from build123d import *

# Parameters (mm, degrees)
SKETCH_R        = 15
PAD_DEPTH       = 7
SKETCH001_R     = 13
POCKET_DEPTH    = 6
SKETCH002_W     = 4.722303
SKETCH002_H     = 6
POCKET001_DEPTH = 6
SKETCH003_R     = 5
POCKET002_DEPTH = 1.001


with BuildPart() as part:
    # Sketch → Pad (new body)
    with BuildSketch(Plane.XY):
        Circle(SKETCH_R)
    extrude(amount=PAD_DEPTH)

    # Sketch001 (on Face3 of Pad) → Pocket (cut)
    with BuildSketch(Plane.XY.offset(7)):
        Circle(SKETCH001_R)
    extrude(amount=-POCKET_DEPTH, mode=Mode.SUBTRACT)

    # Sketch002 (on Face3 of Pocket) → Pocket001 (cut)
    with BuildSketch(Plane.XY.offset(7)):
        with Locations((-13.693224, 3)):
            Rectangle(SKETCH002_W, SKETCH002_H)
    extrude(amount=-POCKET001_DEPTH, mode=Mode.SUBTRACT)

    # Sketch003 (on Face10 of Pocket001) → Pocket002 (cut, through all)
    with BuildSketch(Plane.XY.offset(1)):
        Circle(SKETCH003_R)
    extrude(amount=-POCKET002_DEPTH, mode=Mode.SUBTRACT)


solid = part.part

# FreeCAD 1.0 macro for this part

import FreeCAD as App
import Part
import Sketcher

V = App.Vector
Q = App.Units.Quantity


def add_polygon(sketch, points):
    """Adds a closed chain of lines whose ends are joined by coincident constraints."""
    first, n = sketch.GeometryCount, len(points)
    for a, b in zip(points, points[1:] + points[:1]):
        sketch.addGeometry(Part.LineSegment(App.Vector(*a, 0), App.Vector(*b, 0)), False)
    for i in range(n):
        sketch.addConstraint(Sketcher.Constraint("Coincident", first + i, 2, first + (i + 1) % n, 1))

doc = App.newDocument("Part")
body = doc.addObject("PartDesign::Body", "Body")

# Sketch on XY plane
sketch1 = body.newObject("Sketcher::SketchObject", "Sketch")
sketch1.AttachmentSupport = (doc.getObject("XY_Plane"), [""])
sketch1.MapMode = "FlatFace"
sketch1.addGeometry(Part.Circle(V(0, 0, 0), V(0, 0, 1), 15), False)
sketch1.addConstraint([
    Sketcher.Constraint("Coincident", 0, 3, -1, 1),
    Sketcher.Constraint("Diameter", 0, Q("30 mm")),
])
pad1 = body.newObject("PartDesign::Pad", "Pad")
pad1.Profile = sketch1
pad1.Length = 7

# Sketch on XY plane
sketch2 = body.newObject("Sketcher::SketchObject", "Sketch001")
sketch2.AttachmentSupport = (doc.getObject("XY_Plane"), [""])
sketch2.MapMode = "FlatFace"
sketch2.AttachmentOffset = App.Placement(V(0, 0, 7), App.Rotation())
sketch2.addGeometry(Part.Circle(V(0, 0, 0), V(0, 0, 1), 13), False)
sketch2.addConstraint([
    Sketcher.Constraint("Coincident", 0, 3, -1, 1),
    Sketcher.Constraint("Diameter", 0, Q("26 mm")),
])
pocket1 = body.newObject("PartDesign::Pocket", "Pocket")
pocket1.Profile = sketch2
pocket1.Length = 6

# Sketch on XY plane
sketch3 = body.newObject("Sketcher::SketchObject", "Sketch002")
sketch3.AttachmentSupport = (doc.getObject("XY_Plane"), [""])
sketch3.MapMode = "FlatFace"
sketch3.AttachmentOffset = App.Placement(V(0, 0, 7), App.Rotation())
add_polygon(sketch3, [(-16.054375, 6), (-16.054375, 0), (-11.332073, 0), (-11.332073, 6)])  # lines 0-3
sketch3.addConstraint([
    Sketcher.Constraint("Vertical", 0),
    Sketcher.Constraint("Horizontal", 1),
    Sketcher.Constraint("Vertical", 2),
    Sketcher.Constraint("Horizontal", 3),
    Sketcher.Constraint("PointOnObject", 0, 2, -1),
    Sketcher.Constraint("DistanceY", 0, 2, 0, 1, Q("6 mm")),
    Sketcher.Constraint("DistanceX", 1, 1, 1, 2, Q("4.722303 mm")),
    Sketcher.Constraint("DistanceX", 0, 2, -1, 1, Q("16.054375 mm")),
])
pocket2 = body.newObject("PartDesign::Pocket", "Pocket001")
pocket2.Profile = sketch3
pocket2.Length = 6

# Sketch on XY plane
sketch4 = body.newObject("Sketcher::SketchObject", "Sketch003")
sketch4.AttachmentSupport = (doc.getObject("XY_Plane"), [""])
sketch4.MapMode = "FlatFace"
sketch4.AttachmentOffset = App.Placement(V(0, 0, 1), App.Rotation())
sketch4.addGeometry(Part.Circle(V(0, 0, 0), V(0, 0, 1), 5), False)
sketch4.addConstraint([
    Sketcher.Constraint("Coincident", 0, 3, -1, 1),
    Sketcher.Constraint("Diameter", 0, Q("10 mm")),
])
pocket3 = body.newObject("PartDesign::Pocket", "Pocket002")
pocket3.Profile = sketch4
pocket3.Type = "ThroughAll"

doc.recompute()
